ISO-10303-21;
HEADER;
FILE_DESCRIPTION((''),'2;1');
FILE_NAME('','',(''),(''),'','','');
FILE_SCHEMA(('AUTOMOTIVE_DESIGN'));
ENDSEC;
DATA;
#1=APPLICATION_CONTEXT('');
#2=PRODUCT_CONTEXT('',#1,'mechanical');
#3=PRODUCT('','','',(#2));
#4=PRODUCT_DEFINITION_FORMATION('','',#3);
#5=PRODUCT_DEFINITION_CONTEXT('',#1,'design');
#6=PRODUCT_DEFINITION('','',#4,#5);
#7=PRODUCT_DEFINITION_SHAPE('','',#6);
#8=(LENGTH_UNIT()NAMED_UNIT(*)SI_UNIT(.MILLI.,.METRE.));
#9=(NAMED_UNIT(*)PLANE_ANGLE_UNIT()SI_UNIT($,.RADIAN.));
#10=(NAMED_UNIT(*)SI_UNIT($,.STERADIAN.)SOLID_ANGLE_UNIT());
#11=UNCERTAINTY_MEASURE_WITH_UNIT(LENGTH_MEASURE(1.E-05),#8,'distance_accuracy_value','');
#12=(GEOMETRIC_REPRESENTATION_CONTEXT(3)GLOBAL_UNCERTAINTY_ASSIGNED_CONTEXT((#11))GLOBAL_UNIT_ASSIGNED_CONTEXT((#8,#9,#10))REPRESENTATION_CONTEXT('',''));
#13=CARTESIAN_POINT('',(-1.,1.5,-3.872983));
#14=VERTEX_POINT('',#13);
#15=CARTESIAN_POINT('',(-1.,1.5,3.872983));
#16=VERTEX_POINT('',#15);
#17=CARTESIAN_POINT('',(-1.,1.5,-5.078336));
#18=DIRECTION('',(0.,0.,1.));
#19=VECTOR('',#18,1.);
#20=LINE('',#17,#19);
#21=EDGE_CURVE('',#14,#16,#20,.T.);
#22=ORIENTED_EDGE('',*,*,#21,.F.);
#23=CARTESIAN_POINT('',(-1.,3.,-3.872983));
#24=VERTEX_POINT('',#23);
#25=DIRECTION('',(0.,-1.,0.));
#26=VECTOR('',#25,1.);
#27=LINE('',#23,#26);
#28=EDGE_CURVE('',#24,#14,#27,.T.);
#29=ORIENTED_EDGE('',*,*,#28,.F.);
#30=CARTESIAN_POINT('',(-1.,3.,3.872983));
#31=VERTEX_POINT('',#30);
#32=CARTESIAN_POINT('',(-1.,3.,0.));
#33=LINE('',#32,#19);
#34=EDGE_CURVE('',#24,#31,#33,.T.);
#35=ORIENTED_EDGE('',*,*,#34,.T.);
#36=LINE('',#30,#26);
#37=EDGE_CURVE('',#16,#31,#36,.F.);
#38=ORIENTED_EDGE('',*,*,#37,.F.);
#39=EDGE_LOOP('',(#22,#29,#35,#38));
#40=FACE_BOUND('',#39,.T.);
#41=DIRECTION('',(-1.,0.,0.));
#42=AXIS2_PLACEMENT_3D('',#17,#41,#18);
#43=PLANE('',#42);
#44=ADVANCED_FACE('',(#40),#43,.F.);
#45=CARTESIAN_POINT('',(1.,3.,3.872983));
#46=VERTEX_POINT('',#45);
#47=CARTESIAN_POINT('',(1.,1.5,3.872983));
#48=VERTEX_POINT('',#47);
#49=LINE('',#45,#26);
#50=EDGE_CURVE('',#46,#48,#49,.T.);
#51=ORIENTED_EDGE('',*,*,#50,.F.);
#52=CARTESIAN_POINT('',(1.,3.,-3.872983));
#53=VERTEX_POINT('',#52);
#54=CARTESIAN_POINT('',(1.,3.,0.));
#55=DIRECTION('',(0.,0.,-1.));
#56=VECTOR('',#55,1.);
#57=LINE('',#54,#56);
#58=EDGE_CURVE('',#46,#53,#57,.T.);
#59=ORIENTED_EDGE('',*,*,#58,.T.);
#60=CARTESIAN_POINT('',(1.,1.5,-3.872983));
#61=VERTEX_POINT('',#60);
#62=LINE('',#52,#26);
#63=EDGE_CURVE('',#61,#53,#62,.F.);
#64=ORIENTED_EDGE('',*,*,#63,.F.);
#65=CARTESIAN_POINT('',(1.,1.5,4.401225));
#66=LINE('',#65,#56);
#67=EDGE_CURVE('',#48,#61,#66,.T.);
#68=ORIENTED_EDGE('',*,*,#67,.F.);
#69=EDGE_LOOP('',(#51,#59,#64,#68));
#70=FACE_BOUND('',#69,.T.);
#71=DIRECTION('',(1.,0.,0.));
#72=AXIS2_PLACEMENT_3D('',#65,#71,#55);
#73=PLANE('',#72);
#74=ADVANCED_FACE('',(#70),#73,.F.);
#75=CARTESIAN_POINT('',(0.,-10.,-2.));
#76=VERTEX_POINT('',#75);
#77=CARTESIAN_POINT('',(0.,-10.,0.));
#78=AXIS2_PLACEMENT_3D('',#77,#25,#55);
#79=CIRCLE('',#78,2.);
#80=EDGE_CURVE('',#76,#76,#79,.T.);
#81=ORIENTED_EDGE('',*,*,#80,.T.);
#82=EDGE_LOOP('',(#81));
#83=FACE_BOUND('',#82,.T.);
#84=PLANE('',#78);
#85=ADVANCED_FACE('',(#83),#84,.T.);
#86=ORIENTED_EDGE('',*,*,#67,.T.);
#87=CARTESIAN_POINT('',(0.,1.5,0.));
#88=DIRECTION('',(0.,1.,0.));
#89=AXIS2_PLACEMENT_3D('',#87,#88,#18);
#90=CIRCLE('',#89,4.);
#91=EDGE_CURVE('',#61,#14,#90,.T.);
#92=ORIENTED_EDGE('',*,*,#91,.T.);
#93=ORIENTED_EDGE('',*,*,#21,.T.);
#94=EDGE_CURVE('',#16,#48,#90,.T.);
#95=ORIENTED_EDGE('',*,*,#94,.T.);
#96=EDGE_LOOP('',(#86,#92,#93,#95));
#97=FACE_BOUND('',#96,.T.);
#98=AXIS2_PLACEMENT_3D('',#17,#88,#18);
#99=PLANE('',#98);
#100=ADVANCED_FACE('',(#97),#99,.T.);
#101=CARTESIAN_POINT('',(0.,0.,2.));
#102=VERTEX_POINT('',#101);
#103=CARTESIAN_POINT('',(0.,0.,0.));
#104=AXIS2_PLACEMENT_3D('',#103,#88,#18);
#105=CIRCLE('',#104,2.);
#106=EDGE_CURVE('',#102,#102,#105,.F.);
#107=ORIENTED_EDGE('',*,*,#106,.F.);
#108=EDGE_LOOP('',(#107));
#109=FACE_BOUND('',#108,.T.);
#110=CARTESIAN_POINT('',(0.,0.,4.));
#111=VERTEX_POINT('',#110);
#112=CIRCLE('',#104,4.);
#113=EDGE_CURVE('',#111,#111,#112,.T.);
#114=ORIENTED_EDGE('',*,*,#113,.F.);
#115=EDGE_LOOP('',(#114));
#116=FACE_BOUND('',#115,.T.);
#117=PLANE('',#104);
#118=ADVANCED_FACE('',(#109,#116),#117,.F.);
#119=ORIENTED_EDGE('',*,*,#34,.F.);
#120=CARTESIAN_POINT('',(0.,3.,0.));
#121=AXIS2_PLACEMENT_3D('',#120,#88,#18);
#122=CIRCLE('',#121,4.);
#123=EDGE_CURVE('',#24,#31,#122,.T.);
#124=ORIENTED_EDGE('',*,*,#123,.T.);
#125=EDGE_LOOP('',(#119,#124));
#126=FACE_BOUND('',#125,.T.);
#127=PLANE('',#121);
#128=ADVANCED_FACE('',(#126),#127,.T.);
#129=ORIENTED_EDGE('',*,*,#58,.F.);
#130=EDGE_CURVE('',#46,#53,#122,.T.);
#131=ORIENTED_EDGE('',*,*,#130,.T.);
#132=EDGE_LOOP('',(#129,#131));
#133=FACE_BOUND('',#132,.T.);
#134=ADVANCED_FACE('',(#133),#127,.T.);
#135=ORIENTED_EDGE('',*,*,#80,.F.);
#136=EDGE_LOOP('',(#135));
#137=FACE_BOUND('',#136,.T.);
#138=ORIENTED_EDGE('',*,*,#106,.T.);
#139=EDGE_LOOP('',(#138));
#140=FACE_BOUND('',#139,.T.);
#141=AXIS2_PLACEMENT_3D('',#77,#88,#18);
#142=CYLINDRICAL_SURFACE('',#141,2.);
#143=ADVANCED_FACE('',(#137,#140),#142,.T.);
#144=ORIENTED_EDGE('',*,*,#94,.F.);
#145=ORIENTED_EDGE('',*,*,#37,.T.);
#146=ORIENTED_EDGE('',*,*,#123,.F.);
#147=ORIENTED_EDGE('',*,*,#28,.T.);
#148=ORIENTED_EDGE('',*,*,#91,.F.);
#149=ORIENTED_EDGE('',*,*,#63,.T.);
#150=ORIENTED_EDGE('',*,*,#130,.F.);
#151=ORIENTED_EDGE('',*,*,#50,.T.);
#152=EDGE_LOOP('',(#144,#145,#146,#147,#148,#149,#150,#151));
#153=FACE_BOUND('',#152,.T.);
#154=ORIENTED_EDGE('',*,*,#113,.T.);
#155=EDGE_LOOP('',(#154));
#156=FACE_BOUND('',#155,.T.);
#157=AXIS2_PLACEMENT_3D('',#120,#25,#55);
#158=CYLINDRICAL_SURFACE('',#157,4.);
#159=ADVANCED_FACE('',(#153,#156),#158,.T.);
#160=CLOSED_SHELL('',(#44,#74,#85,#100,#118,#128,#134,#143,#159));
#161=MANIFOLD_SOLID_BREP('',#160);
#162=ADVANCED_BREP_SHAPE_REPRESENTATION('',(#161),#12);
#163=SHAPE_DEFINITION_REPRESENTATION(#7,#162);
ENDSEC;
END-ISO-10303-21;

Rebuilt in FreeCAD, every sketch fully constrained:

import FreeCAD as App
import Part
import Sketcher

V = App.Vector

doc = App.newDocument("Part")
body = doc.addObject("PartDesign::Body", "Body")

sketch1 = body.newObject("Sketcher::SketchObject", "Sketch")
sketch1.AttachmentSupport = (doc.getObject("XZ_Plane"), [""])
sketch1.MapMode = "FlatFace"
sketch1.addGeometry(Part.Circle(V(0, 0, 0), V(0, 0, 1), 4), False)
sketch1.addConstraint([
    Sketcher.Constraint("Coincident", 0, 3, -1, 1),
    Sketcher.Constraint("Diameter", 0, 8.0),
])
pad1 = body.newObject("PartDesign::Pad", "Pad")
pad1.Profile = sketch1
pad1.Length = 3
pad1.Reversed = True

sketch2 = body.newObject("Sketcher::SketchObject", "Sketch001")
sketch2.AttachmentSupport = (doc.getObject("XZ_Plane"), [""])
sketch2.MapMode = "FlatFace"
sketch2.AttachmentOffset = App.Placement(V(0, 0, -3), App.Rotation())
sketch2.addGeometry([
    Part.LineSegment(V(1, 4.4, 0), V(1, -5.1, 0)),
    Part.LineSegment(V(1, -5.1, 0), V(-1, -5.1, 0)),
    Part.LineSegment(V(-1, -5.1, 0), V(-1, 4.4, 0)),
    Part.LineSegment(V(-1, 4.4, 0), V(1, 4.4, 0)),
], False)
sketch2.addConstraint([
    Sketcher.Constraint("Coincident", 0, 2, 1, 1),
    Sketcher.Constraint("Coincident", 1, 2, 2, 1),
    Sketcher.Constraint("Coincident", 2, 2, 3, 1),
    Sketcher.Constraint("Coincident", 3, 2, 0, 1),
    Sketcher.Constraint("Vertical", 0),
    Sketcher.Constraint("Horizontal", 1),
    Sketcher.Constraint("Vertical", 2),
    Sketcher.Constraint("Horizontal", 3),
    Sketcher.Constraint("DistanceX", 1, 2, 1, 1, 2.0),
    Sketcher.Constraint("DistanceX", -1, 1, 0, 2, 1.0),
    Sketcher.Constraint("DistanceY", 0, 2, 0, 1, 9.479561),
    Sketcher.Constraint("DistanceY", 0, 2, -1, 1, 5.078336),
])
pocket1 = body.newObject("PartDesign::Pocket", "Pocket")
pocket1.Profile = sketch2
pocket1.Length = 1.5
pocket1.Reversed = True

sketch3 = body.newObject("Sketcher::SketchObject", "Sketch002")
sketch3.AttachmentSupport = (doc.getObject("XZ_Plane"), [""])
sketch3.MapMode = "FlatFace"
sketch3.addGeometry(Part.Circle(V(0, 0, 0), V(0, 0, 1), 2), False)
sketch3.addConstraint([
    Sketcher.Constraint("Coincident", 0, 3, -1, 1),
    Sketcher.Constraint("Diameter", 0, 4.0),
])
pad2 = body.newObject("PartDesign::Pad", "Pad001")
pad2.Profile = sketch3
pad2.Length = 10

doc.recompute()
